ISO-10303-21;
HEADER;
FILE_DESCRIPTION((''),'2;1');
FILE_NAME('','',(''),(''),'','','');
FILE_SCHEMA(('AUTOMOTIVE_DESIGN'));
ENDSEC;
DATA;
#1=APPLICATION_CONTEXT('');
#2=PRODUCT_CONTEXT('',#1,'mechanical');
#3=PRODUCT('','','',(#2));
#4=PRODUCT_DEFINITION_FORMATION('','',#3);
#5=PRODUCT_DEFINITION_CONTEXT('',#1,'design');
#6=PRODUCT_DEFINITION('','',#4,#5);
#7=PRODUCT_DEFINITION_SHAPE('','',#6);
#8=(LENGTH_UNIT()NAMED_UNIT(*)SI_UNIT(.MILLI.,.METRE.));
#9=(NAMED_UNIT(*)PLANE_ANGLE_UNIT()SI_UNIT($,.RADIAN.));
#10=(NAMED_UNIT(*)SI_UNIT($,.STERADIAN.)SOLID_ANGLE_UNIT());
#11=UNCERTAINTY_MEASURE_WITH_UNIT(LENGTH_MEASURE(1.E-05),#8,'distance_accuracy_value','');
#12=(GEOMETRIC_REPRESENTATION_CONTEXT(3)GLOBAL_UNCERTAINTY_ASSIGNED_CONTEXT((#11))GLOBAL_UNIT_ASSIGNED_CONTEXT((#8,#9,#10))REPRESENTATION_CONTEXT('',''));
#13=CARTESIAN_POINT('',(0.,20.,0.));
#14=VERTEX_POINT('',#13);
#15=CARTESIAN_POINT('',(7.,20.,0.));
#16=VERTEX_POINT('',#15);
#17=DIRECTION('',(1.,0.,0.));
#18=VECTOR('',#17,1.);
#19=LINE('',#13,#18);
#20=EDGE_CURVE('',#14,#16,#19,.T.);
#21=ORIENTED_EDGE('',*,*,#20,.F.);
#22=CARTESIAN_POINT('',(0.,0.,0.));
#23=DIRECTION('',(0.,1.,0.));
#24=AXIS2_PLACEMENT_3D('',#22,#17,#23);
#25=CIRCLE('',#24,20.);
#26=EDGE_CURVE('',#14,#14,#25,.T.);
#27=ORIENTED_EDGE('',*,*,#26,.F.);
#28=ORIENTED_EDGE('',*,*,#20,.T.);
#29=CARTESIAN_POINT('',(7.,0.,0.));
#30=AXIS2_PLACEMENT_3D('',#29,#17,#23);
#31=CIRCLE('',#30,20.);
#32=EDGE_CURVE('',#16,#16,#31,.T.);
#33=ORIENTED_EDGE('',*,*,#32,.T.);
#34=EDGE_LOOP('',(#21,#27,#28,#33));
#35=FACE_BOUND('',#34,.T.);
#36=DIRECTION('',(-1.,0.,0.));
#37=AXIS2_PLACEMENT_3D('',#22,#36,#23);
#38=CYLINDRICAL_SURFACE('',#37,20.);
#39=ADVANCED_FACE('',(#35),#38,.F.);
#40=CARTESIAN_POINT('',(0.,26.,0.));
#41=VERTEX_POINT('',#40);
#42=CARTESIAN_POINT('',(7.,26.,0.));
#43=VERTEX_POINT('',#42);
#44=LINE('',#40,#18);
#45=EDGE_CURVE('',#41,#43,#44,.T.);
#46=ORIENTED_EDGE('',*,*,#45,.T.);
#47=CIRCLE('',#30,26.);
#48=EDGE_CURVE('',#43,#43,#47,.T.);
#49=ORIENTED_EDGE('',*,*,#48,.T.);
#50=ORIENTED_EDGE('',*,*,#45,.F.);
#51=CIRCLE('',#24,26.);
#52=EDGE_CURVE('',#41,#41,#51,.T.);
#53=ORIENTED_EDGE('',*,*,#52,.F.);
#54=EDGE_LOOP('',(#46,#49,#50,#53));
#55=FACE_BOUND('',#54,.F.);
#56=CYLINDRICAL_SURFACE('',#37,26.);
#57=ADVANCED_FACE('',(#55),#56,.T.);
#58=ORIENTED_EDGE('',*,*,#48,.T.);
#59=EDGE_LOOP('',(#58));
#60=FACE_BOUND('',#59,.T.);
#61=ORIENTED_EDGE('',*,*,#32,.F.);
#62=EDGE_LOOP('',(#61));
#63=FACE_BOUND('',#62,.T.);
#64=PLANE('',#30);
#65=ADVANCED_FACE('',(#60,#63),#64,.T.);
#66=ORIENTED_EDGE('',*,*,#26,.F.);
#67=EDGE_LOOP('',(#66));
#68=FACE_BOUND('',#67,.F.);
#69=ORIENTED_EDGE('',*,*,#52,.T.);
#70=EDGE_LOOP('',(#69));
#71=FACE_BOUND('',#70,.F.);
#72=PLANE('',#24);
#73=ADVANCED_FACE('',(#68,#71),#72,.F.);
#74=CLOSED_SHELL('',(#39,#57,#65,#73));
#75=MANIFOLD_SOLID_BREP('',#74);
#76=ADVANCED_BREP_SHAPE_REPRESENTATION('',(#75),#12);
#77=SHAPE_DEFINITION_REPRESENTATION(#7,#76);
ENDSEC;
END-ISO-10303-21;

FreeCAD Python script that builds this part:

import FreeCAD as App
import Part
import Sketcher
from FreeCAD import Vector

doc = App.newDocument("Part")
params = doc.addObject("Spreadsheet::Sheet", "Params")
for row, (alias, value) in enumerate([
    ("sketch1_diameter", "52 mm"),
    ("sketch1_diameter2", "40 mm"),
    ("pad1_length", "7 mm"),
], start=1):
    params.set(f"A{row}", alias)
    params.set(f"B{row}", "=" + value)
    params.setAlias(f"B{row}", alias)

body = doc.addObject("PartDesign::Body", "Body")

# Sketch on YZ plane
sketch1 = body.newObject("Sketcher::SketchObject", "Sketch")
sketch1.AttachmentSupport = (doc.getObject("YZ_Plane"), [""])
sketch1.MapMode = "FlatFace"
sketch1.addGeometry([
    Part.Circle(Vector(0, 0, 0), Vector(0, 0, 1), 26),
    Part.Circle(Vector(0, 0, 0), Vector(0, 0, 1), 20),
], False)
sketch1.addConstraint([
    Sketcher.Constraint("Coincident", 0, 3, -1, 1),
    Sketcher.Constraint("Coincident", 1, 3, -1, 1),
    Sketcher.Constraint("Diameter", 0, 52.0),
    Sketcher.Constraint("Diameter", 1, 40.0),
])
sketch1.setExpression("Constraints[2]", "Params.sketch1_diameter")
sketch1.setExpression("Constraints[3]", "Params.sketch1_diameter2")
pad1 = body.newObject("PartDesign::Pad", "Pad")
pad1.Profile = sketch1
pad1.setExpression("Length", "Params.pad1_length")

doc.recompute()
